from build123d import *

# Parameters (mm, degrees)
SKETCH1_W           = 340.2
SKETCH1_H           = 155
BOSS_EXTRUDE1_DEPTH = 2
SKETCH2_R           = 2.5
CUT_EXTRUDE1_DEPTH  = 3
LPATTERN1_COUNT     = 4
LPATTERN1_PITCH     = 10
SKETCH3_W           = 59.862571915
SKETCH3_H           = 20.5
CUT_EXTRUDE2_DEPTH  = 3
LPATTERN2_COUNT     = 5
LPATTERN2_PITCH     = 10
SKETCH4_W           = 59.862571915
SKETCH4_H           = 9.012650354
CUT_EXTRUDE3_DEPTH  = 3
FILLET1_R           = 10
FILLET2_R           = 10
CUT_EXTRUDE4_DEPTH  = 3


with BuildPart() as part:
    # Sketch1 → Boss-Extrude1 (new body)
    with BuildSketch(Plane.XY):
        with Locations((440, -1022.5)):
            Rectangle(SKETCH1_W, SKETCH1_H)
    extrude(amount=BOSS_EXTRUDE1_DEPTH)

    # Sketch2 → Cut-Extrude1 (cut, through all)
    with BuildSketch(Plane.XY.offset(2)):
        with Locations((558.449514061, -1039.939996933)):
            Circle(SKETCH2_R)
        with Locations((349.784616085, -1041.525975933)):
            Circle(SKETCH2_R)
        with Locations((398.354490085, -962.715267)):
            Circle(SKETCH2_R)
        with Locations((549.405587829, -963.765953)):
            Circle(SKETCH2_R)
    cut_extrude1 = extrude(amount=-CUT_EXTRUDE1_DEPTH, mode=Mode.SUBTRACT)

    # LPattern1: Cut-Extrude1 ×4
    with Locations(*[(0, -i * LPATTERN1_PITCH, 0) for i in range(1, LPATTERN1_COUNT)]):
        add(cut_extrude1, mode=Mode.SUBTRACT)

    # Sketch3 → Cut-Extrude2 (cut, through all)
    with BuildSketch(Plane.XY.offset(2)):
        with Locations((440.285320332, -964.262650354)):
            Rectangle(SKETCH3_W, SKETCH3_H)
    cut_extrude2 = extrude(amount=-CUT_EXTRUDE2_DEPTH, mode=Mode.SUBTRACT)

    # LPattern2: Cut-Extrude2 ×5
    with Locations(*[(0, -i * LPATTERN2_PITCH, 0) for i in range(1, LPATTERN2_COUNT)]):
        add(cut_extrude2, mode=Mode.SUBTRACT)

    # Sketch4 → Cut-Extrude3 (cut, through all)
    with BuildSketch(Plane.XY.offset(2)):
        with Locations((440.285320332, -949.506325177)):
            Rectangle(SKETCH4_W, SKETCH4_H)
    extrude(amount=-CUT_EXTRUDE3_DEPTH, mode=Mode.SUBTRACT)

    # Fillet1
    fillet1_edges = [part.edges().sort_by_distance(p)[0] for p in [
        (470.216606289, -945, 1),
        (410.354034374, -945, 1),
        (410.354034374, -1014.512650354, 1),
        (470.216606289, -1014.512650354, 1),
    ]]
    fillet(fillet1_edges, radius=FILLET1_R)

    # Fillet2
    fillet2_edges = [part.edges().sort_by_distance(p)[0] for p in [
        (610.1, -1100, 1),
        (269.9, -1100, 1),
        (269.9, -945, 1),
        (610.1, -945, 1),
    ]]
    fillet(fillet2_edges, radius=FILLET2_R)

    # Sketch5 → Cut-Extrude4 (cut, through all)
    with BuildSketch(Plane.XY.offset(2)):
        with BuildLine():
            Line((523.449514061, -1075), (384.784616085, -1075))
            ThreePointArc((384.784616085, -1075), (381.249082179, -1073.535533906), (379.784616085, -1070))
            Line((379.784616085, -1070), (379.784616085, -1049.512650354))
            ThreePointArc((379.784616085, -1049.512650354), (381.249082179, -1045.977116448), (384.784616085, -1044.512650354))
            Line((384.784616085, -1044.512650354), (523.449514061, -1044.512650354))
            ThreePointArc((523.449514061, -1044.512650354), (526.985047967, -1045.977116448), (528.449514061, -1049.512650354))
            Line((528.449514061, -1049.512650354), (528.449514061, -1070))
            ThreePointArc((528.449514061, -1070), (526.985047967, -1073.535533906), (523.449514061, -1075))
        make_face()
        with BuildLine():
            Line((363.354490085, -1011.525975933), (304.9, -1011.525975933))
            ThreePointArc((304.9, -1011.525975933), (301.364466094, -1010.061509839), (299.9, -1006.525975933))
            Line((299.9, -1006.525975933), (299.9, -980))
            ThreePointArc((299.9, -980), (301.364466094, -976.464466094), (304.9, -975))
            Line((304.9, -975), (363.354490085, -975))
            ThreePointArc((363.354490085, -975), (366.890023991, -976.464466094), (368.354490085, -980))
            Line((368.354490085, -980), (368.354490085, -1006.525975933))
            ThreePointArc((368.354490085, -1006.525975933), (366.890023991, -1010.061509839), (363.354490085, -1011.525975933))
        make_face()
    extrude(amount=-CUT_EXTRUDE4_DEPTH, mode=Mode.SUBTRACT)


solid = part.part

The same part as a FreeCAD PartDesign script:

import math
import FreeCAD as App
import Part
import Sketcher

V = App.Vector


def edges_at(feature, points):
    """Names of the edges that pass closest to the given points."""
    edges = feature.Shape.Edges
    near = lambda p: min(range(len(edges)), key=lambda i: edges[i].distToShape(Part.Vertex(*p))[0])
    return sorted({f"Edge{near(p) + 1}" for p in points})


def add_polygon(sketch, points):
    """Adds a closed chain of lines whose ends are joined by coincident constraints."""
    first, n = sketch.GeometryCount, len(points)
    for a, b in zip(points, points[1:] + points[:1]):
        sketch.addGeometry(Part.LineSegment(App.Vector(*a, 0), App.Vector(*b, 0)), False)
    for i in range(n):
        sketch.addConstraint(Sketcher.Constraint("Coincident", first + i, 2, first + (i + 1) % n, 1))

doc = App.newDocument("Part")
body = doc.addObject("PartDesign::Body", "Body")

# Sketch on XY plane
sketch1 = body.newObject("Sketcher::SketchObject", "Sketch")
sketch1.AttachmentSupport = (doc.getObject("XY_Plane"), [""])
sketch1.MapMode = "FlatFace"
add_polygon(sketch1, [(269.9, -945), (269.9, -1100), (610.1, -1100), (610.1, -945)])  # lines 0-3
sketch1.addConstraint(Sketcher.Constraint("Vertical", 0))
sketch1.addConstraint(Sketcher.Constraint("Horizontal", 1))
sketch1.addConstraint(Sketcher.Constraint("Vertical", 2))
sketch1.addConstraint(Sketcher.Constraint("Horizontal", 3))
sketch1.addConstraint(Sketcher.Constraint("DistanceY", 0, 2, 0, 1, 155.0))
sketch1.addConstraint(Sketcher.Constraint("DistanceX", 1, 1, 1, 2, 340.2))
sketch1.addConstraint(Sketcher.Constraint("DistanceY", 0, 2, -1, 1, 1100.0))
sketch1.addConstraint(Sketcher.Constraint("DistanceX", -1, 1, 0, 2, 269.9))
pad1 = body.newObject("PartDesign::Pad", "Pad")
pad1.Profile = sketch1
pad1.Length = 2

# Sketch on XY plane
sketch2 = body.newObject("Sketcher::SketchObject", "Sketch001")
sketch2.AttachmentSupport = (doc.getObject("XY_Plane"), [""])
sketch2.MapMode = "FlatFace"
sketch2.AttachmentOffset = App.Placement(V(0, 0, 2), App.Rotation())
sketch2.addGeometry(Part.Circle(V(558.449514, -1039.939997, 0), V(0, 0, 1), 2.5), False)
sketch2.addGeometry(Part.Circle(V(349.784616, -1041.525976, 0), V(0, 0, 1), 2.5), False)
sketch2.addGeometry(Part.Circle(V(398.35449, -962.715267, 0), V(0, 0, 1), 2.5), False)
sketch2.addGeometry(Part.Circle(V(549.405588, -963.765953, 0), V(0, 0, 1), 2.5), False)
sketch2.addConstraint(Sketcher.Constraint("Equal", 0, 1))
sketch2.addConstraint(Sketcher.Constraint("Equal", 1, 2))
sketch2.addConstraint(Sketcher.Constraint("Equal", 2, 3))
sketch2.addConstraint(Sketcher.Constraint("Diameter", 0, 5.0))
sketch2.addConstraint(Sketcher.Constraint("DistanceX", -1, 1, 2, 3, 398.35449))
sketch2.addConstraint(Sketcher.Constraint("DistanceY", 1, 3, 0, 3, 1.585979))
sketch2.addConstraint(Sketcher.Constraint("DistanceY", 1, 3, 2, 3, 78.810709))
sketch2.addConstraint(Sketcher.Constraint("DistanceX", 1, 3, 3, 3, 199.620972))
sketch2.addConstraint(Sketcher.Constraint("DistanceX", -1, 1, 0, 3, 558.449514))
sketch2.addConstraint(Sketcher.Constraint("DistanceY", 0, 3, -1, 1, 1039.939997))
sketch2.addConstraint(Sketcher.Constraint("DistanceX", -1, 1, 1, 3, 349.784616))
sketch2.addConstraint(Sketcher.Constraint("DistanceY", 3, 3, -1, 1, 963.765953))
pocket1 = body.newObject("PartDesign::Pocket", "Pocket")
pocket1.Profile = sketch2
pocket1.Type = "ThroughAll"
doc.recompute()

linearpattern = body.newObject("PartDesign::LinearPattern", "LinearPattern")
linearpattern.Originals = [pocket1]
linearpattern.Direction = (doc.getObject("Y_Axis"), [""])
linearpattern.Mode = "offset"
linearpattern.Offset = 10
linearpattern.Occurrences = 4
linearpattern.Reversed = True
body.Tip = linearpattern

# Sketch on XY plane
sketch3 = body.newObject("Sketcher::SketchObject", "Sketch002")
sketch3.AttachmentSupport = (doc.getObject("XY_Plane"), [""])
sketch3.MapMode = "FlatFace"
sketch3.AttachmentOffset = App.Placement(V(0, 0, 2), App.Rotation())
add_polygon(sketch3, [(410.354034, -954.01265), (410.354034, -974.51265), (470.216606, -974.51265), (470.216606, -954.01265)])  # lines 0-3
sketch3.addConstraint(Sketcher.Constraint("Vertical", 0))
sketch3.addConstraint(Sketcher.Constraint("Horizontal", 1))
sketch3.addConstraint(Sketcher.Constraint("Vertical", 2))
sketch3.addConstraint(Sketcher.Constraint("Horizontal", 3))
sketch3.addConstraint(Sketcher.Constraint("DistanceY", 0, 2, 0, 1, 20.5))
sketch3.addConstraint(Sketcher.Constraint("DistanceX", 1, 1, 1, 2, 59.862572))
sketch3.addConstraint(Sketcher.Constraint("DistanceY", 0, 2, -1, 1, 974.51265))
sketch3.addConstraint(Sketcher.Constraint("DistanceX", -1, 1, 0, 2, 410.354034))
pocket2 = body.newObject("PartDesign::Pocket", "Pocket001")
pocket2.Profile = sketch3
pocket2.Type = "ThroughAll"
doc.recompute()

linearpattern2 = body.newObject("PartDesign::LinearPattern", "LinearPattern001")
linearpattern2.Originals = [pocket2]
linearpattern2.Direction = (doc.getObject("Y_Axis"), [""])
linearpattern2.Mode = "offset"
linearpattern2.Offset = 10
linearpattern2.Occurrences = 5
linearpattern2.Reversed = True
body.Tip = linearpattern2

# Sketch on XY plane
sketch4 = body.newObject("Sketcher::SketchObject", "Sketch003")
sketch4.AttachmentSupport = (doc.getObject("XY_Plane"), [""])
sketch4.MapMode = "FlatFace"
sketch4.AttachmentOffset = App.Placement(V(0, 0, 2), App.Rotation())
add_polygon(sketch4, [(410.354034, -945), (410.354034, -954.01265), (470.216606, -954.01265), (470.216606, -945)])  # lines 0-3
sketch4.addConstraint(Sketcher.Constraint("Vertical", 0))
sketch4.addConstraint(Sketcher.Constraint("Horizontal", 1))
sketch4.addConstraint(Sketcher.Constraint("Vertical", 2))
sketch4.addConstraint(Sketcher.Constraint("Horizontal", 3))
sketch4.addConstraint(Sketcher.Constraint("DistanceY", 2, 2, -1, 1, 945.0))
sketch4.addConstraint(Sketcher.Constraint("DistanceX", 1, 1, 1, 2, 59.862572))
sketch4.addConstraint(Sketcher.Constraint("DistanceY", 0, 2, 0, 1, 9.01265))
sketch4.addConstraint(Sketcher.Constraint("DistanceX", -1, 1, 0, 2, 410.354034))
pocket3 = body.newObject("PartDesign::Pocket", "Pocket002")
pocket3.Profile = sketch4
pocket3.Type = "ThroughAll"
doc.recompute()

fillet = body.newObject("PartDesign::Fillet", "Fillet")
fillet.Base = (pocket3, edges_at(pocket3, [
    (470.217, -945, 1),
    (410.354, -945, 1),
    (410.354, -1014.513, 1),
    (470.217, -1014.513, 1),
]))
fillet.Radius = 10
doc.recompute()

fillet2 = body.newObject("PartDesign::Fillet", "Fillet001")
fillet2.Base = (fillet, edges_at(fillet, [
    (610.1, -1100, 1),
    (269.9, -1100, 1),
    (269.9, -945, 1),
    (610.1, -945, 1),
]))
fillet2.Radius = 10

# Sketch on XY plane
sketch5 = body.newObject("Sketcher::SketchObject", "Sketch004")
sketch5.AttachmentSupport = (doc.getObject("XY_Plane"), [""])
sketch5.MapMode = "FlatFace"
sketch5.AttachmentOffset = App.Placement(V(0, 0, 2), App.Rotation())
sketch5.addGeometry(Part.LineSegment(V(384.784616, -1075, 0), V(523.449514, -1075, 0)), False)
sketch5.addGeometry(Part.ArcOfCircle(Part.Circle(V(523.449514, -1070, 0), V(0, 0, 1), 5), math.radians(-90), math.radians(0)), False)
sketch5.addGeometry(Part.LineSegment(V(528.449514, -1070, 0), V(528.449514, -1049.51265, 0)), False)
sketch5.addGeometry(Part.ArcOfCircle(Part.Circle(V(523.449514, -1049.51265, 0), V(0, 0, 1), 5), math.radians(0), math.radians(90)), False)
sketch5.addGeometry(Part.LineSegment(V(523.449514, -1044.51265, 0), V(384.784616, -1044.51265, 0)), False)
sketch5.addGeometry(Part.ArcOfCircle(Part.Circle(V(384.784616, -1049.51265, 0), V(0, 0, 1), 5), math.radians(90), math.radians(180)), False)
sketch5.addGeometry(Part.LineSegment(V(379.784616, -1049.51265, 0), V(379.784616, -1070, 0)), False)
sketch5.addGeometry(Part.ArcOfCircle(Part.Circle(V(384.784616, -1070, 0), V(0, 0, 1), 5), math.radians(180), math.radians(270)), False)
sketch5.addGeometry(Part.LineSegment(V(304.9, -1011.525976, 0), V(363.35449, -1011.525976, 0)), False)
sketch5.addGeometry(Part.ArcOfCircle(Part.Circle(V(363.35449, -1006.525976, 0), V(0, 0, 1), 5), math.radians(-90), math.radians(0)), False)
sketch5.addGeometry(Part.LineSegment(V(368.35449, -1006.525976, 0), V(368.35449, -980, 0)), False)
sketch5.addGeometry(Part.ArcOfCircle(Part.Circle(V(363.35449, -980, 0), V(0, 0, 1), 5), math.radians(0), math.radians(90)), False)
sketch5.addGeometry(Part.LineSegment(V(363.35449, -975, 0), V(304.9, -975, 0)), False)
sketch5.addGeometry(Part.ArcOfCircle(Part.Circle(V(304.9, -980, 0), V(0, 0, 1), 5), math.radians(90), math.radians(180)), False)
sketch5.addGeometry(Part.LineSegment(V(299.9, -980, 0), V(299.9, -1006.525976, 0)), False)
sketch5.addGeometry(Part.ArcOfCircle(Part.Circle(V(304.9, -1006.525976, 0), V(0, 0, 1), 5), math.radians(180), math.radians(270)), False)
sketch5.addConstraint(Sketcher.Constraint("Tangent", 0, 2, 1, 1))
sketch5.addConstraint(Sketcher.Constraint("Tangent", 1, 2, 2, 1))
sketch5.addConstraint(Sketcher.Constraint("Tangent", 2, 2, 3, 1))
sketch5.addConstraint(Sketcher.Constraint("Tangent", 3, 2, 4, 1))
sketch5.addConstraint(Sketcher.Constraint("Tangent", 4, 2, 5, 1))
sketch5.addConstraint(Sketcher.Constraint("Tangent", 5, 2, 6, 1))
sketch5.addConstraint(Sketcher.Constraint("Tangent", 6, 2, 7, 1))
sketch5.addConstraint(Sketcher.Constraint("Tangent", 7, 2, 0, 1))
sketch5.addConstraint(Sketcher.Constraint("Tangent", 8, 2, 9, 1))
sketch5.addConstraint(Sketcher.Constraint("Tangent", 9, 2, 10, 1))
sketch5.addConstraint(Sketcher.Constraint("Tangent", 10, 2, 11, 1))
sketch5.addConstraint(Sketcher.Constraint("Tangent", 11, 2, 12, 1))
sketch5.addConstraint(Sketcher.Constraint("Tangent", 12, 2, 13, 1))
sketch5.addConstraint(Sketcher.Constraint("Tangent", 13, 2, 14, 1))
sketch5.addConstraint(Sketcher.Constraint("Tangent", 14, 2, 15, 1))
sketch5.addConstraint(Sketcher.Constraint("Tangent", 15, 2, 8, 1))
sketch5.addConstraint(Sketcher.Constraint("Horizontal", 0))
sketch5.addConstraint(Sketcher.Constraint("Vertical", 2))
sketch5.addConstraint(Sketcher.Constraint("Horizontal", 4))
sketch5.addConstraint(Sketcher.Constraint("Vertical", 6))
sketch5.addConstraint(Sketcher.Constraint("Horizontal", 8))
sketch5.addConstraint(Sketcher.Constraint("Vertical", 10))
sketch5.addConstraint(Sketcher.Constraint("Horizontal", 12))
sketch5.addConstraint(Sketcher.Constraint("Vertical", 14))
sketch5.addConstraint(Sketcher.Constraint("Equal", 1, 3))
sketch5.addConstraint(Sketcher.Constraint("Equal", 3, 5))
sketch5.addConstraint(Sketcher.Constraint("Equal", 5, 7))
sketch5.addConstraint(Sketcher.Constraint("Equal", 7, 9))
sketch5.addConstraint(Sketcher.Constraint("Equal", 9, 11))
sketch5.addConstraint(Sketcher.Constraint("Equal", 11, 13))
sketch5.addConstraint(Sketcher.Constraint("Equal", 13, 15))
sketch5.addConstraint(Sketcher.Constraint("Radius", 1, 5.0))
sketch5.addConstraint(Sketcher.Constraint("DistanceY", 1, 3, -1, 1, 1070.0))
sketch5.addConstraint(Sketcher.Constraint("DistanceY", 11, 3, -1, 1, 980.0))
sketch5.addConstraint(Sketcher.Constraint("DistanceX", -1, 1, 13, 3, 304.9))
sketch5.addConstraint(Sketcher.Constraint("DistanceX", 8, 1, 8, 2, 58.45449))
sketch5.addConstraint(Sketcher.Constraint("DistanceY", 2, 1, 2, 2, 20.48735))
sketch5.addConstraint(Sketcher.Constraint("DistanceX", 0, 1, 0, 2, 138.664898))
sketch5.addConstraint(Sketcher.Constraint("DistanceY", 10, 1, 10, 2, 26.525976))
sketch5.addConstraint(Sketcher.Constraint("DistanceX", -1, 1, 1, 3, 523.449514))
pocket4 = body.newObject("PartDesign::Pocket", "Pocket003")
pocket4.Profile = sketch5
pocket4.Type = "ThroughAll"

doc.recompute()
